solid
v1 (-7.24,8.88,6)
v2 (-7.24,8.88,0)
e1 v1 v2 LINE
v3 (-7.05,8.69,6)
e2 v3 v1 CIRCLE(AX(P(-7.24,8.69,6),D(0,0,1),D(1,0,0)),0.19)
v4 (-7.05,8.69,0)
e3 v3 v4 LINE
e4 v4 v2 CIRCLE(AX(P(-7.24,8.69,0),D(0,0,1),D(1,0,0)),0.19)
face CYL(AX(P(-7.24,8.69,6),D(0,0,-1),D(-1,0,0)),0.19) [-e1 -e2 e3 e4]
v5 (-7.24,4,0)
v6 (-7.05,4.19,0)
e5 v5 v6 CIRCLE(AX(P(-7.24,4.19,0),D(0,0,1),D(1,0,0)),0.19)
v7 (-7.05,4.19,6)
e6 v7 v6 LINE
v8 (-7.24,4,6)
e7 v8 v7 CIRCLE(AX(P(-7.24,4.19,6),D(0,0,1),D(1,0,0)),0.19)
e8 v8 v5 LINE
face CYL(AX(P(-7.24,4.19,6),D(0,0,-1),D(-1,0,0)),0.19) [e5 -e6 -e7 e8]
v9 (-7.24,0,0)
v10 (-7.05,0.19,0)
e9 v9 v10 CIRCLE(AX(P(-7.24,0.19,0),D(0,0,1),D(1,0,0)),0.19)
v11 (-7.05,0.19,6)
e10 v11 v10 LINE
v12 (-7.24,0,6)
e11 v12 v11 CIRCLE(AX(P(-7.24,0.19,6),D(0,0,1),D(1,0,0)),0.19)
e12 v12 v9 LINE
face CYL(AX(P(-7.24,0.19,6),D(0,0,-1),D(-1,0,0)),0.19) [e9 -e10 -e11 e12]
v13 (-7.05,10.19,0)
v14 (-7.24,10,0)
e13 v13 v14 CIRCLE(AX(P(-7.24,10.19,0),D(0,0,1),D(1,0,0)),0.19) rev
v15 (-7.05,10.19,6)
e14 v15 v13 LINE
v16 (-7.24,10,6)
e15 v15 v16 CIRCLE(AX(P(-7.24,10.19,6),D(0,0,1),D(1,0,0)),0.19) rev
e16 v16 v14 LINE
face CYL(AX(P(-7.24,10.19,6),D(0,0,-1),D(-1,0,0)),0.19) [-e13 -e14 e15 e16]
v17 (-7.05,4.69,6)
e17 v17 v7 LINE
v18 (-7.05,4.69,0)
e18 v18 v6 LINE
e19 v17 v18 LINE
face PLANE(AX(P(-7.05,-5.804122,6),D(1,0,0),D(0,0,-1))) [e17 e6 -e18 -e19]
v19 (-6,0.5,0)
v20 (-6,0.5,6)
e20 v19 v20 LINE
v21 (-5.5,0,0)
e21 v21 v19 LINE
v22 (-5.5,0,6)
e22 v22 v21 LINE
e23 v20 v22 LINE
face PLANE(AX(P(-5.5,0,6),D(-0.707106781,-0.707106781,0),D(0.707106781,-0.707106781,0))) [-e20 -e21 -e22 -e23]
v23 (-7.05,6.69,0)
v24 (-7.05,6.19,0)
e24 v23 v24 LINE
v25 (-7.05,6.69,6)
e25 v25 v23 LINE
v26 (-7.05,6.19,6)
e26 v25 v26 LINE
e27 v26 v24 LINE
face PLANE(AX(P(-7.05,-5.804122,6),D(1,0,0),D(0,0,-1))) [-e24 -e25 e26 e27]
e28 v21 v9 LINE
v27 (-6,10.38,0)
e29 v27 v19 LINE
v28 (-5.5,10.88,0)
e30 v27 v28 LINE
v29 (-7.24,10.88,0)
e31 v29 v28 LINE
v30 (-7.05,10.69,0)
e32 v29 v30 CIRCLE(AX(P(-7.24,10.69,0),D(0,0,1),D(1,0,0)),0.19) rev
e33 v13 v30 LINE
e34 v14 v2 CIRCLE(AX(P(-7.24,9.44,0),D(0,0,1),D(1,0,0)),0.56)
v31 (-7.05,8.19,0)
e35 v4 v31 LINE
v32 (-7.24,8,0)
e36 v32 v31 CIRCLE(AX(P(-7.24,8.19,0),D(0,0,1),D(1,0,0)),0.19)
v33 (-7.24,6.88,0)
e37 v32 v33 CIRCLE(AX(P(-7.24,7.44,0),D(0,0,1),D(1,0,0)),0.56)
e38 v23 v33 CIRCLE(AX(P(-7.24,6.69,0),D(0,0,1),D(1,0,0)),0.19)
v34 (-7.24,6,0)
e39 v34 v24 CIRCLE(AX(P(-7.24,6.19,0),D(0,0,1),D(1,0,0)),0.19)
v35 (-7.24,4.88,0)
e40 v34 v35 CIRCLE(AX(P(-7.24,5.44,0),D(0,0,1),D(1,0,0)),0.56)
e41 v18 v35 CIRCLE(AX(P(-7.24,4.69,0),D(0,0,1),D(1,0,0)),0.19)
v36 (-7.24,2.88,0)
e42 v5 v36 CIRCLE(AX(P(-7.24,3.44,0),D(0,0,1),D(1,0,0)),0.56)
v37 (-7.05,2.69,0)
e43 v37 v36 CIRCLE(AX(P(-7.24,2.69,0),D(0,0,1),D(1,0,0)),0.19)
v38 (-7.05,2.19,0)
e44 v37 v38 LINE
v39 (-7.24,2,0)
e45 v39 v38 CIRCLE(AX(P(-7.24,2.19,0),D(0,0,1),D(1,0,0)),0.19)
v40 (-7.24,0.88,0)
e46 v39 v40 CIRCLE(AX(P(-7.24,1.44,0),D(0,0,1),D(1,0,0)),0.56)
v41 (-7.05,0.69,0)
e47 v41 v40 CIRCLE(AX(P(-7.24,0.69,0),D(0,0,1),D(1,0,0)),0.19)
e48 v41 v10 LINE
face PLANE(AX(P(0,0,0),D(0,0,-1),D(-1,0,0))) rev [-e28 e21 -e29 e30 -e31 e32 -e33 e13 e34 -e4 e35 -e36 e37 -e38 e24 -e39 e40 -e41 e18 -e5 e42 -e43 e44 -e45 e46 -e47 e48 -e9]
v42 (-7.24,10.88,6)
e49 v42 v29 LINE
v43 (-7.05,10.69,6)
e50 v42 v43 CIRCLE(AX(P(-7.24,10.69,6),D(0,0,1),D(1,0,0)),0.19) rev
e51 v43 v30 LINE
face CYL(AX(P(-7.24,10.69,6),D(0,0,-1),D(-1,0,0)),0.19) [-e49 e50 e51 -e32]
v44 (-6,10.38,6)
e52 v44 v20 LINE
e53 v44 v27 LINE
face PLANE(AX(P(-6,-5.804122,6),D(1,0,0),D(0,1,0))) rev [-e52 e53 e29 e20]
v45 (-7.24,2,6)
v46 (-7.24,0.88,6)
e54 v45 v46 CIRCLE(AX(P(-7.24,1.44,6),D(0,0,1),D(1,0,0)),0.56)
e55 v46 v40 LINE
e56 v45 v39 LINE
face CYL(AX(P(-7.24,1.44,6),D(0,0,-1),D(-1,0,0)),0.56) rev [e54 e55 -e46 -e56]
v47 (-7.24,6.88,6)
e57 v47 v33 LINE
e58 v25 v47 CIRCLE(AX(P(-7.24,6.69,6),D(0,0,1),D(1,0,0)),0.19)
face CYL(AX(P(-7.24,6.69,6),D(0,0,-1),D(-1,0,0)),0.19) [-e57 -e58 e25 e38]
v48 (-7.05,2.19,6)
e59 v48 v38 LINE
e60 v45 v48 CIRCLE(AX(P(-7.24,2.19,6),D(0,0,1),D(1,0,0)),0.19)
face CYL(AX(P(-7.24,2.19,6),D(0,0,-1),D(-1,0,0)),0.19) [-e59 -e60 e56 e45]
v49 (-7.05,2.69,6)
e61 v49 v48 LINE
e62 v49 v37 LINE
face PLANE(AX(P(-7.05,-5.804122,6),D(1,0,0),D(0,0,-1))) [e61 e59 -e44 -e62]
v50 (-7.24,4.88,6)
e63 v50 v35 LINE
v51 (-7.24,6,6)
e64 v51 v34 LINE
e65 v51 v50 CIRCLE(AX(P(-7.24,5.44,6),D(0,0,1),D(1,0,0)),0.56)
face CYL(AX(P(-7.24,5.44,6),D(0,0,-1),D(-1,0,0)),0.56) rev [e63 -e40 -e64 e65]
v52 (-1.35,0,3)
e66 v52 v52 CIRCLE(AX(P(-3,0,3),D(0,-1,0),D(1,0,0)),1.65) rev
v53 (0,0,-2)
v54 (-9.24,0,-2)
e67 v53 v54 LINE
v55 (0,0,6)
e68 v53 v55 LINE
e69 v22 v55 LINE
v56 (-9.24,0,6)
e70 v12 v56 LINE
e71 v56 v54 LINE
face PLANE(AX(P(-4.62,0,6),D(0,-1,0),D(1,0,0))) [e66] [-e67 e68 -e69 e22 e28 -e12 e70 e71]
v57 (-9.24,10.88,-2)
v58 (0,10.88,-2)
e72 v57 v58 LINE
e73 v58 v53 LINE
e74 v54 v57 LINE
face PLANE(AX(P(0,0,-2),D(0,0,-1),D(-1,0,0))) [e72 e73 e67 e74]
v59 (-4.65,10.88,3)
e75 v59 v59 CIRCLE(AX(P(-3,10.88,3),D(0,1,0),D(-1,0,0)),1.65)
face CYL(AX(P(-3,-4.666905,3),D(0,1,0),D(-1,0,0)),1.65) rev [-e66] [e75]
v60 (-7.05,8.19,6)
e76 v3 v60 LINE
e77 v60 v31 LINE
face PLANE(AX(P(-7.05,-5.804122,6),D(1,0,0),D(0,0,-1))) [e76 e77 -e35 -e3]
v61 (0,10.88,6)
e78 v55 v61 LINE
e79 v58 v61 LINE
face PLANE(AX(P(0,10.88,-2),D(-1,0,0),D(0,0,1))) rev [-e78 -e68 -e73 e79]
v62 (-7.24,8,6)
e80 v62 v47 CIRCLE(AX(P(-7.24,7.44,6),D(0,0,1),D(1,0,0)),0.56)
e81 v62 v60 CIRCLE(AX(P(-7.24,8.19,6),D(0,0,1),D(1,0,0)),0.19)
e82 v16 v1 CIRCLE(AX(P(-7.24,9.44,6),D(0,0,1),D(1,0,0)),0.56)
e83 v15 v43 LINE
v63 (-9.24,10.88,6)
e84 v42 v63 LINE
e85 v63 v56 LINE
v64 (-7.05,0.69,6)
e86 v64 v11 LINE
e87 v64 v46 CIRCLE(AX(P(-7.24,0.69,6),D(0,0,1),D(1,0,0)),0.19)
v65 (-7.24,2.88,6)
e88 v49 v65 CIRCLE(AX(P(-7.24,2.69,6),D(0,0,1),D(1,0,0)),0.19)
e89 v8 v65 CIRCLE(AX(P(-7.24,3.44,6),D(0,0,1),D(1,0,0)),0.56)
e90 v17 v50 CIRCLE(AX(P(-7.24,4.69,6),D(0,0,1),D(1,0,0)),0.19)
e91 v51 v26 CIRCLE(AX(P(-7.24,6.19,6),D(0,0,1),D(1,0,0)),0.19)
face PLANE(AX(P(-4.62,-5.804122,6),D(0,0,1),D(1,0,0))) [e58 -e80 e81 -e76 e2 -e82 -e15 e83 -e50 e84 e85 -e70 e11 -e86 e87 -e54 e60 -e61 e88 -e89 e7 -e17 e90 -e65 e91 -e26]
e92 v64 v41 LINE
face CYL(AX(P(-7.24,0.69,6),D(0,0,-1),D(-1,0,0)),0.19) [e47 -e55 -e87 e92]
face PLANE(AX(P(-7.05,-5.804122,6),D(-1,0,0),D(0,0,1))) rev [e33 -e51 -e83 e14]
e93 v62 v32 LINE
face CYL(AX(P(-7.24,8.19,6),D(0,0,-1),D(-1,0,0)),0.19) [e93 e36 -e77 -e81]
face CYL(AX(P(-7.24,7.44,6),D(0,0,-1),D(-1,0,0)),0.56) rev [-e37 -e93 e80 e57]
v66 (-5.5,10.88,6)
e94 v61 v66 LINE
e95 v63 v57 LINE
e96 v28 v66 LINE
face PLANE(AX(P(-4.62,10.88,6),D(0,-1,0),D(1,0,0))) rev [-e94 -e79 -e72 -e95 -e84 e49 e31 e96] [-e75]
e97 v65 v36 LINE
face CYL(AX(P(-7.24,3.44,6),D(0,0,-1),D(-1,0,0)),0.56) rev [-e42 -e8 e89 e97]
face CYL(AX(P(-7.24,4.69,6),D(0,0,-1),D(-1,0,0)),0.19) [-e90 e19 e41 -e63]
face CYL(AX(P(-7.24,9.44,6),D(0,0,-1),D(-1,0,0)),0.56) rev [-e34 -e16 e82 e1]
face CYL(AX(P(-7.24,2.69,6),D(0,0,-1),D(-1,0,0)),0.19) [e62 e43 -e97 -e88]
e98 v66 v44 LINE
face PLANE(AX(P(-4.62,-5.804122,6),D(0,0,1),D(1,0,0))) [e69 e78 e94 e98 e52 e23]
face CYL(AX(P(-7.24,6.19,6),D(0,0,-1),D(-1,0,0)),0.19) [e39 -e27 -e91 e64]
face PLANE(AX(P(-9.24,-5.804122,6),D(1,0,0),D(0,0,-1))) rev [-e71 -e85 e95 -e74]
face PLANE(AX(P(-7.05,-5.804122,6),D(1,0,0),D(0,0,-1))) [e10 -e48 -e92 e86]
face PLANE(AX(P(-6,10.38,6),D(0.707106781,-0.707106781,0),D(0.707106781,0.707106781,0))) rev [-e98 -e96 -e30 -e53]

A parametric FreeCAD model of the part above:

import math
import FreeCAD as App
import Part
import Sketcher

V = App.Vector
Q = App.Units.Quantity


def edges_at(feature, points):
    """Names of the edges that pass closest to the given points."""
    edges = feature.Shape.Edges
    near = lambda p: min(range(len(edges)), key=lambda i: edges[i].distToShape(Part.Vertex(*p))[0])
    return sorted({f"Edge{near(p) + 1}" for p in points})

doc = App.newDocument("Part")
body = doc.addObject("PartDesign::Body", "Body")

# Sketch on XY plane
sketch1 = doc.addObject("Sketcher::SketchObject", "Sketch")
body.addObject(sketch1)
sketch1.AttachmentSupport = (doc.XY_Plane, [""])
sketch1.MapMode = "FlatFace"
sketch1.addGeometry([
    Part.LineSegment(V(0, 0, 0), V(0, 10.88, 0)),
    Part.LineSegment(V(0, 10.88, 0), V(-6, 10.88, 0)),
    Part.LineSegment(V(-6, 10.88, 0), V(-6, 0, 0)),
    Part.LineSegment(V(-6, 0, 0), V(0, 0, 0)),
], False)
sketch1.addConstraint([
    Sketcher.Constraint("Coincident", 0, 2, 1, 1),
    Sketcher.Constraint("Coincident", 1, 2, 2, 1),
    Sketcher.Constraint("Coincident", 2, 2, 3, 1),
    Sketcher.Constraint("Coincident", 3, 2, 0, 1),
    Sketcher.Constraint("Vertical", 0),
    Sketcher.Constraint("Horizontal", 1),
    Sketcher.Constraint("Vertical", 2),
    Sketcher.Constraint("Horizontal", 3),
    Sketcher.Constraint("Coincident", 3, 2, -1, 1),
    Sketcher.Constraint("DistanceX", 1, 2, 1, 1, Q("6 mm")),
    Sketcher.Constraint("DistanceY", 0, 1, 0, 2, Q("10.88 mm")),
])
pad1 = doc.addObject("PartDesign::Pad", "Pad")
body.addObject(pad1)
pad1.Profile = sketch1
pad1.Length = 6
body2 = doc.addObject("PartDesign::Body", "Body001")

# Sketch on XY plane
sketch2 = doc.addObject("Sketcher::SketchObject", "Sketch001")
body2.addObject(sketch2)
sketch2.AttachmentSupport = (doc.getObject("XY_Plane001"), [""])
sketch2.MapMode = "FlatFace"
sketch2.addGeometry([
    Part.LineSegment(V(-7.05, 10.19, 0), V(-7.05, 10.69, 0)),  # 0
    Part.ArcOfCircle(Part.Circle(V(-7.24, 10.69, 0), V(0, 0, 1), 0.19), math.radians(0), math.radians(90)),  # 1
    Part.LineSegment(V(-7.24, 10.88, 0), V(-9.24, 10.88, 0)),  # 2
    Part.LineSegment(V(-9.24, 10.88, 0), V(-9.24, 0, 0)),  # 3
    Part.LineSegment(V(-9.24, 0, 0), V(-7.24, 0, 0)),  # 4
    Part.ArcOfCircle(Part.Circle(V(-7.24, 0.19, 0), V(0, 0, 1), 0.19), math.radians(-90), math.radians(0)),  # 5
    Part.LineSegment(V(-7.05, 0.19, 0), V(-7.05, 0.69, 0)),  # 6
    Part.ArcOfCircle(Part.Circle(V(-7.24, 0.69, 0), V(0, 0, 1), 0.19), math.radians(0), math.radians(90)),  # 7
    Part.ArcOfCircle(Part.Circle(V(-7.24, 1.44, 0), V(0, 0, 1), 0.56), math.radians(90), math.radians(270)),  # 8
    Part.ArcOfCircle(Part.Circle(V(-7.24, 2.19, 0), V(0, 0, 1), 0.19), math.radians(-90), math.radians(0)),  # 9
    Part.LineSegment(V(-7.05, 2.19, 0), V(-7.05, 2.69, 0)),  # 10
    Part.ArcOfCircle(Part.Circle(V(-7.24, 2.69, 0), V(0, 0, 1), 0.19), math.radians(0), math.radians(90)),  # 11
    Part.ArcOfCircle(Part.Circle(V(-7.24, 3.44, 0), V(0, 0, 1), 0.56), math.radians(90), math.radians(270)),  # 12
    Part.ArcOfCircle(Part.Circle(V(-7.24, 4.19, 0), V(0, 0, 1), 0.19), math.radians(-90), math.radians(0)),  # 13
    Part.LineSegment(V(-7.05, 4.19, 0), V(-7.05, 4.69, 0)),  # 14
    Part.ArcOfCircle(Part.Circle(V(-7.24, 4.69, 0), V(0, 0, 1), 0.19), math.radians(0), math.radians(90)),  # 15
    Part.ArcOfCircle(Part.Circle(V(-7.24, 5.44, 0), V(0, 0, 1), 0.56), math.radians(90), math.radians(270)),  # 16
    Part.ArcOfCircle(Part.Circle(V(-7.24, 6.19, 0), V(0, 0, 1), 0.19), math.radians(-90), math.radians(0)),  # 17
    Part.LineSegment(V(-7.05, 6.19, 0), V(-7.05, 6.69, 0)),  # 18
    Part.ArcOfCircle(Part.Circle(V(-7.24, 6.69, 0), V(0, 0, 1), 0.19), math.radians(0), math.radians(90)),  # 19
    Part.ArcOfCircle(Part.Circle(V(-7.24, 7.44, 0), V(0, 0, 1), 0.56), math.radians(90), math.radians(270)),  # 20
    Part.ArcOfCircle(Part.Circle(V(-7.24, 8.19, 0), V(0, 0, 1), 0.19), math.radians(-90), math.radians(0)),  # 21
    Part.LineSegment(V(-7.05, 8.19, 0), V(-7.05, 8.69, 0)),  # 22
    Part.ArcOfCircle(Part.Circle(V(-7.24, 8.69, 0), V(0, 0, 1), 0.19), math.radians(0), math.radians(90)),  # 23
    Part.ArcOfCircle(Part.Circle(V(-7.24, 9.44, 0), V(0, 0, 1), 0.56), math.radians(90), math.radians(270)),  # 24
    Part.ArcOfCircle(Part.Circle(V(-7.24, 10.19, 0), V(0, 0, 1), 0.19), math.radians(-90), math.radians(0)),  # 25
], False)
sketch2.addConstraint([
    Sketcher.Constraint("Tangent", 0, 2, 1, 1),
    Sketcher.Constraint("Tangent", 1, 2, 2, 1),
    Sketcher.Constraint("Coincident", 2, 2, 3, 1),
    Sketcher.Constraint("Coincident", 3, 2, 4, 1),
    Sketcher.Constraint("Tangent", 4, 2, 5, 1),
    Sketcher.Constraint("Tangent", 5, 2, 6, 1),
    Sketcher.Constraint("Tangent", 6, 2, 7, 1),
    Sketcher.Constraint("Tangent", 7, 2, 8, 2),
    Sketcher.Constraint("Tangent", 8, 1, 9, 1),
    Sketcher.Constraint("Tangent", 9, 2, 10, 1),
    Sketcher.Constraint("Tangent", 10, 2, 11, 1),
    Sketcher.Constraint("Tangent", 11, 2, 12, 2),
    Sketcher.Constraint("Tangent", 12, 1, 13, 1),
    Sketcher.Constraint("Tangent", 13, 2, 14, 1),
    Sketcher.Constraint("Tangent", 14, 2, 15, 1),
    Sketcher.Constraint("Tangent", 15, 2, 16, 2),
    Sketcher.Constraint("Tangent", 16, 1, 17, 1),
    Sketcher.Constraint("Tangent", 17, 2, 18, 1),
    Sketcher.Constraint("Tangent", 18, 2, 19, 1),
    Sketcher.Constraint("Tangent", 19, 2, 20, 2),
    Sketcher.Constraint("Tangent", 20, 1, 21, 1),
    Sketcher.Constraint("Tangent", 21, 2, 22, 1),
    Sketcher.Constraint("Tangent", 22, 2, 23, 1),
    Sketcher.Constraint("Tangent", 23, 2, 24, 2),
    Sketcher.Constraint("Tangent", 24, 1, 25, 1),
    Sketcher.Constraint("Tangent", 25, 2, 0, 1),
    Sketcher.Constraint("Vertical", 0),
    Sketcher.Constraint("Horizontal", 2),
    Sketcher.Constraint("Vertical", 3),
    Sketcher.Constraint("Horizontal", 4),
    Sketcher.Constraint("Vertical", 6),
    Sketcher.Constraint("Vertical", 10),
    Sketcher.Constraint("Vertical", 14),
    Sketcher.Constraint("Vertical", 18),
    Sketcher.Constraint("Vertical", 22),
    Sketcher.Constraint("Equal", 1, 5),
    Sketcher.Constraint("Equal", 5, 7),
    Sketcher.Constraint("Equal", 7, 9),
    Sketcher.Constraint("Equal", 9, 11),
    Sketcher.Constraint("Equal", 8, 12),
    Sketcher.Constraint("Equal", 11, 13),
    Sketcher.Constraint("Equal", 13, 15),
    Sketcher.Constraint("Equal", 12, 16),
    Sketcher.Constraint("Equal", 15, 17),
    Sketcher.Constraint("Equal", 17, 19),
    Sketcher.Constraint("Equal", 16, 20),
    Sketcher.Constraint("Equal", 19, 21),
    Sketcher.Constraint("Equal", 21, 23),
    Sketcher.Constraint("Equal", 20, 24),
    Sketcher.Constraint("Equal", 23, 25),
    Sketcher.Constraint("PointOnObject", 3, 2, -1),
    Sketcher.Constraint("Vertical", 1, 3, 5, 3),
    Sketcher.Constraint("Vertical", 7, 3, 8, 3),
    Sketcher.Constraint("Vertical", 8, 3, 9, 3),
    Sketcher.Constraint("Vertical", 11, 3, 12, 3),
    Sketcher.Constraint("Vertical", 12, 3, 13, 3),
    Sketcher.Constraint("Vertical", 15, 3, 16, 3),
    Sketcher.Constraint("Vertical", 16, 3, 17, 3),
    Sketcher.Constraint("Vertical", 19, 3, 20, 3),
    Sketcher.Constraint("Vertical", 20, 3, 21, 3),
    Sketcher.Constraint("Vertical", 23, 3, 24, 3),
    Sketcher.Constraint("Equal", 0, 6),
    Sketcher.Constraint("Equal", 6, 10),
    Sketcher.Constraint("Equal", 10, 14),
    Sketcher.Constraint("Equal", 14, 18),
    Sketcher.Constraint("Equal", 18, 22),
    Sketcher.Constraint("DistanceX", 2, 2, 2, 1, Q("2 mm")),
    Sketcher.Constraint("Radius", 1, Q("0.19 mm")),
    Sketcher.Constraint("Radius", 8, Q("0.56 mm")),
    Sketcher.Constraint("DistanceY", 0, 1, 0, 2, Q("0.5 mm")),
    Sketcher.Constraint("DistanceX", 1, 3, -1, 1, Q("7.24 mm")),
])
pad2 = doc.addObject("PartDesign::Pad", "Pad001")
body2.addObject(pad2)
pad2.Profile = sketch2
pad2.Length = 6
body.AllowCompound = True
doc.recompute()

boolean = doc.addObject("PartDesign::Boolean", "Boolean")
body.addObject(boolean)
boolean.Type = "Fuse"
boolean.addObjects([body2])

# Sketch on XY plane
sketch3 = doc.addObject("Sketcher::SketchObject", "Sketch002")
body.addObject(sketch3)
sketch3.AttachmentSupport = (doc.XY_Plane, [""])
sketch3.MapMode = "FlatFace"
sketch3.addGeometry([
    Part.LineSegment(V(0, 10.88, 0), V(0, 0, 0)),
    Part.LineSegment(V(0, 0, 0), V(-9.24, 0, 0)),
    Part.LineSegment(V(-9.24, 0, 0), V(-9.24, 10.88, 0)),
    Part.LineSegment(V(-9.24, 10.88, 0), V(0, 10.88, 0)),
], False)
sketch3.addConstraint([
    Sketcher.Constraint("Coincident", 0, 2, 1, 1),
    Sketcher.Constraint("Coincident", 1, 2, 2, 1),
    Sketcher.Constraint("Coincident", 2, 2, 3, 1),
    Sketcher.Constraint("Coincident", 3, 2, 0, 1),
    Sketcher.Constraint("Vertical", 0),
    Sketcher.Constraint("Horizontal", 1),
    Sketcher.Constraint("Vertical", 2),
    Sketcher.Constraint("Horizontal", 3),
    Sketcher.Constraint("Coincident", 0, 2, -1, 1),
    Sketcher.Constraint("DistanceX", 1, 2, 1, 1, Q("9.24 mm")),
    Sketcher.Constraint("DistanceY", 0, 2, 0, 1, Q("10.88 mm")),
])
pad3 = doc.addObject("PartDesign::Pad", "Pad002")
body.addObject(pad3)
pad3.Profile = sketch3
pad3.Length = 2
pad3.Reversed = True

# Sketch on XZ plane
sketch4 = doc.addObject("Sketcher::SketchObject", "Sketch003")
body.addObject(sketch4)
sketch4.AttachmentSupport = (doc.XZ_Plane, [""])
sketch4.MapMode = "FlatFace"
sketch4.AttachmentOffset = App.Placement(V(0, 0, -10.88), App.Rotation())
sketch4.addGeometry(Part.Circle(V(-3, 3, 0), V(0, 0, 1), 1.65), False)
sketch4.addConstraint([
    Sketcher.Constraint("Diameter", 0, Q("3.3 mm")),
    Sketcher.Constraint("DistanceX", 0, 3, -1, 1, Q("3 mm")),
    Sketcher.Constraint("DistanceY", -1, 1, 0, 3, Q("3 mm")),
])
pocket1 = doc.addObject("PartDesign::Pocket", "Pocket")
body.addObject(pocket1)
pocket1.Profile = sketch4
pocket1.Length = 10.88
pocket1.Reversed = True
doc.recompute()

chamfer = doc.addObject("PartDesign::Chamfer", "Chamfer")
body.addObject(chamfer)
chamfer.Base = (pocket1, edges_at(pocket1, [(-6, 10.88, 3), (-6, 0, 3)]))
chamfer.Size = 0.5

doc.recompute()
